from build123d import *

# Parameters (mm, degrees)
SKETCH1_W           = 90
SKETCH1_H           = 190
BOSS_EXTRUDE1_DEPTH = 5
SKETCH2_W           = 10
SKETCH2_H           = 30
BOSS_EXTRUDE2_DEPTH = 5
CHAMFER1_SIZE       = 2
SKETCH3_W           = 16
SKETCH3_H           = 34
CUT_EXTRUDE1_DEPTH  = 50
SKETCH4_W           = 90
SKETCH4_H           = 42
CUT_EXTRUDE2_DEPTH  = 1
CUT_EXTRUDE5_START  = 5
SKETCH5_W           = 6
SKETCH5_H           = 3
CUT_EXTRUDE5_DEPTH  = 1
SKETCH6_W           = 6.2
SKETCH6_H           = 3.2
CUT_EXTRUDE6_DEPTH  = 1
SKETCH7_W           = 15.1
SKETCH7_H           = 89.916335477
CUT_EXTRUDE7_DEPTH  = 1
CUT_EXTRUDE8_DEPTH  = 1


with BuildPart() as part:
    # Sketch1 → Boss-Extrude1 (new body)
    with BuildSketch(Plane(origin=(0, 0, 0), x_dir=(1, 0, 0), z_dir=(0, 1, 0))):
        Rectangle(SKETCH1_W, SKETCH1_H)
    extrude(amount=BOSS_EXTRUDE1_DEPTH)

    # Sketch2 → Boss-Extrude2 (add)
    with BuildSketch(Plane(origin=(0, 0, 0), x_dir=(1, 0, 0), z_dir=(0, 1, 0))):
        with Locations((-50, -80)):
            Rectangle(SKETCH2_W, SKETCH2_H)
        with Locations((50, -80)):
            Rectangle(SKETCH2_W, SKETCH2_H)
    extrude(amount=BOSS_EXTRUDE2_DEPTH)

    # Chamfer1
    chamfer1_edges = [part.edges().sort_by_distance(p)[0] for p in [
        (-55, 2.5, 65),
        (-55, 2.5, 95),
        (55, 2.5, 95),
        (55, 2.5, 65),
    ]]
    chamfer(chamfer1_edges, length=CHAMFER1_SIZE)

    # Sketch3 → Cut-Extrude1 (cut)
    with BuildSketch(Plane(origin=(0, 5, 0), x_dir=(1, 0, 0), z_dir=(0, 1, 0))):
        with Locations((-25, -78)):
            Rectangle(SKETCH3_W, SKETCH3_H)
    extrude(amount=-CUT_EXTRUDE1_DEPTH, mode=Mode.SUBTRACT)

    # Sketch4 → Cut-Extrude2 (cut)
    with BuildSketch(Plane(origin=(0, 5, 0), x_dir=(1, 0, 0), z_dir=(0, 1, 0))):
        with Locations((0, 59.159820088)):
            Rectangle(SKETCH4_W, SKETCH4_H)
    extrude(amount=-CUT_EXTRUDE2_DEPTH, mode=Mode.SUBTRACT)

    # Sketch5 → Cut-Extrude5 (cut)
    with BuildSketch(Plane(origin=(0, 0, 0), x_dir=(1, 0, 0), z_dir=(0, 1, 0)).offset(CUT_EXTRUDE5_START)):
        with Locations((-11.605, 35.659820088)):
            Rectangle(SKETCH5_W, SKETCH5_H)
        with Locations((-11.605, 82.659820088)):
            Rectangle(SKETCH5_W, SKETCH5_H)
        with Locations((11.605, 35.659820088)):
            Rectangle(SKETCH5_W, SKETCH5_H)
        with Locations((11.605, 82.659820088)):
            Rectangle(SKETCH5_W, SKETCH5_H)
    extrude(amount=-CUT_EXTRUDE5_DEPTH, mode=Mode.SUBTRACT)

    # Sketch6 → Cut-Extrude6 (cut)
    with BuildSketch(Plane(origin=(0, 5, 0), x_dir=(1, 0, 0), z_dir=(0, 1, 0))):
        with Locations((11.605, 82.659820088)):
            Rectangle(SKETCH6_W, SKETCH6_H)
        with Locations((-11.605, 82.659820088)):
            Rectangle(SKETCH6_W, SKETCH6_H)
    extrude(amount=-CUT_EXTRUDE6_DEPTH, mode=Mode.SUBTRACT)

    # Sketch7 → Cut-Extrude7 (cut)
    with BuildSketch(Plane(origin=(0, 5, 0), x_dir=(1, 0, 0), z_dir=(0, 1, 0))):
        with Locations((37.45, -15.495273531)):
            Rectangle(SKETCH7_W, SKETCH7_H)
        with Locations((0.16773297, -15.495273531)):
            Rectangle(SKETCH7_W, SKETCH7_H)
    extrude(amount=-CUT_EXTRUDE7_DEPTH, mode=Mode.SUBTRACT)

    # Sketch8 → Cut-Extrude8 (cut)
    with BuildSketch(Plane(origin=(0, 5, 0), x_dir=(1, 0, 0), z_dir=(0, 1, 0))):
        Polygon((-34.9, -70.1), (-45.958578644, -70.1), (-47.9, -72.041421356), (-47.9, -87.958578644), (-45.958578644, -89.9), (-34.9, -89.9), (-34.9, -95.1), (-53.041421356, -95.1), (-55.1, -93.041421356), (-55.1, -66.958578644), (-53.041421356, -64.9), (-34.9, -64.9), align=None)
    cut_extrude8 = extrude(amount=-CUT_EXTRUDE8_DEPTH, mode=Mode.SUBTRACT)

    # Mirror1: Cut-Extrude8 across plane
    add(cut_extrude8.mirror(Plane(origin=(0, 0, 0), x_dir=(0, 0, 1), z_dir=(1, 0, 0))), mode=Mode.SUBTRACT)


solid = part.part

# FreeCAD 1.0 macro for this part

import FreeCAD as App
import Part
import Sketcher

V = App.Vector


def edges_at(feature, points):
    """Names of the edges that pass closest to the given points."""
    edges = feature.Shape.Edges
    near = lambda p: min(range(len(edges)), key=lambda i: edges[i].distToShape(Part.Vertex(*p))[0])
    return sorted({f"Edge{near(p) + 1}" for p in points})


def add_polygon(sketch, points):
    """Adds a closed chain of lines whose ends are joined by coincident constraints."""
    first, n = sketch.GeometryCount, len(points)
    for a, b in zip(points, points[1:] + points[:1]):
        sketch.addGeometry(Part.LineSegment(App.Vector(*a, 0), App.Vector(*b, 0)), False)
    for i in range(n):
        sketch.addConstraint(Sketcher.Constraint("Coincident", first + i, 2, first + (i + 1) % n, 1))

doc = App.newDocument("Part")
params = doc.addObject("Spreadsheet::Sheet", "Params")
for row, (alias, value) in enumerate([
    ("sketch1_width", "90 mm"),
    ("sketch1_height", "190 mm"),
    ("pad1_length", "5 mm"),
    ("sketch2_width", "10 mm"),
    ("sketch2_height", "30 mm"),
    ("pad2_length", "5 mm"),
    ("chamfer_size", "2 mm"),
    ("sketch3_width", "16 mm"),
    ("sketch3_height", "34 mm"),
    ("pocket1_length", "50 mm"),
    ("sketch4_width", "90 mm"),
    ("sketch4_height", "42 mm"),
    ("pocket2_length", "1 mm"),
    ("sketch5_width", "6 mm"),
    ("sketch5_height", "3 mm"),
    ("pocket3_length", "1 mm"),
    ("sketch6_width", "6.2 mm"),
    ("sketch6_height", "3.2 mm"),
    ("pocket4_length", "1 mm"),
    ("sketch7_width", "15.1 mm"),
    ("pocket5_length", "1 mm"),
    ("sketch8_height", "5.2 mm"),
    ("pocket6_length", "1 mm"),
], start=1):
    params.set(f"A{row}", alias)
    params.set(f"B{row}", "=" + value)
    params.setAlias(f"B{row}", alias)

body = doc.addObject("PartDesign::Body", "Body")

# Sketch on XZ plane
sketch1 = body.newObject("Sketcher::SketchObject", "Sketch")
sketch1.AttachmentSupport = (doc.getObject("XZ_Plane"), [""])
sketch1.MapMode = "FlatFace"
add_polygon(sketch1, [(-45, -95), (-45, 95), (45, 95), (45, -95)])  # lines 0-3
sketch1.addConstraint([
    Sketcher.Constraint("Vertical", 0),
    Sketcher.Constraint("Horizontal", 1),
    Sketcher.Constraint("Vertical", 2),
    Sketcher.Constraint("Horizontal", 3),
    Sketcher.Constraint("Symmetric", 0, 2, 2, 2, -1, 1),
    Sketcher.Constraint("DistanceX", 1, 1, 1, 2, 90.0),
    Sketcher.Constraint("DistanceY", 0, 1, 0, 2, 190.0),
])
sketch1.setExpression("Constraints[9]", "Params.sketch1_width")
sketch1.setExpression("Constraints[10]", "Params.sketch1_height")
pad1 = body.newObject("PartDesign::Pad", "Pad")
pad1.Profile = sketch1
pad1.setExpression("Length", "Params.pad1_length")
pad1.Reversed = True

# Sketch on XZ plane
sketch2 = body.newObject("Sketcher::SketchObject", "Sketch001")
sketch2.AttachmentSupport = (doc.getObject("XZ_Plane"), [""])
sketch2.MapMode = "FlatFace"
add_polygon(sketch2, [(-55, 65), (-55, 95), (-45, 95), (-45, 65)])  # lines 0-3
add_polygon(sketch2, [(45, 65), (45, 95), (55, 95), (55, 65)])  # lines 4-7
sketch2.addConstraint([
    Sketcher.Constraint("Vertical", 0),
    Sketcher.Constraint("Horizontal", 1),
    Sketcher.Constraint("Vertical", 2),
    Sketcher.Constraint("Horizontal", 3),
    Sketcher.Constraint("Vertical", 4),
    Sketcher.Constraint("Horizontal", 5),
    Sketcher.Constraint("Vertical", 6),
    Sketcher.Constraint("Horizontal", 7),
    Sketcher.Constraint("Symmetric", 1, 2, 4, 2, -2),
    Sketcher.Constraint("Symmetric", 3, 2, 6, 2, -2),
    Sketcher.Constraint("DistanceX", 1, 1, 1, 2, 10.0),
    Sketcher.Constraint("DistanceY", 0, 1, 0, 2, 30.0),
    Sketcher.Constraint("DistanceX", 0, 2, -1, 1, 55.0),
    Sketcher.Constraint("DistanceY", -1, 1, 0, 2, 95.0),
])
sketch2.setExpression("Constraints[18]", "Params.sketch2_width")
sketch2.setExpression("Constraints[19]", "Params.sketch2_height")
pad2 = body.newObject("PartDesign::Pad", "Pad001")
pad2.Profile = sketch2
pad2.setExpression("Length", "Params.pad2_length")
pad2.Reversed = True
doc.recompute()

chamfer = body.newObject("PartDesign::Chamfer", "Chamfer")
chamfer.Base = (pad2, edges_at(pad2, [
    (-55, 2.5, 65),
    (-55, 2.5, 95),
    (55, 2.5, 95),
    (55, 2.5, 65),
]))
chamfer.setExpression("Size", "Params.chamfer_size")

# Sketch on XZ plane
sketch3 = body.newObject("Sketcher::SketchObject", "Sketch002")
sketch3.AttachmentSupport = (doc.getObject("XZ_Plane"), [""])
sketch3.MapMode = "FlatFace"
sketch3.AttachmentOffset = App.Placement(V(0, 0, -5), App.Rotation())
add_polygon(sketch3, [(-33, 61), (-33, 95), (-17, 95), (-17, 61)])  # lines 0-3
sketch3.addConstraint([
    Sketcher.Constraint("Vertical", 0),
    Sketcher.Constraint("Horizontal", 1),
    Sketcher.Constraint("Vertical", 2),
    Sketcher.Constraint("Horizontal", 3),
    Sketcher.Constraint("DistanceX", 1, 1, 1, 2, 16.0),
    Sketcher.Constraint("DistanceY", 0, 1, 0, 2, 34.0),
    Sketcher.Constraint("DistanceX", 0, 2, -1, 1, 33.0),
    Sketcher.Constraint("DistanceY", -1, 1, 0, 2, 95.0),
])
sketch3.setExpression("Constraints[8]", "Params.sketch3_width")
sketch3.setExpression("Constraints[9]", "Params.sketch3_height")
pocket1 = body.newObject("PartDesign::Pocket", "Pocket")
pocket1.Profile = sketch3
pocket1.setExpression("Length", "Params.pocket1_length")
pocket1.Reversed = True

# Sketch on XZ plane
sketch4 = body.newObject("Sketcher::SketchObject", "Sketch003")
sketch4.AttachmentSupport = (doc.getObject("XZ_Plane"), [""])
sketch4.MapMode = "FlatFace"
sketch4.AttachmentOffset = App.Placement(V(0, 0, -5), App.Rotation())
add_polygon(sketch4, [(-45, -80.15982), (-45, -38.15982), (45, -38.15982), (45, -80.15982)])  # lines 0-3
sketch4.addConstraint([
    Sketcher.Constraint("Vertical", 0),
    Sketcher.Constraint("Horizontal", 1),
    Sketcher.Constraint("Vertical", 2),
    Sketcher.Constraint("Horizontal", 3),
    Sketcher.Constraint("DistanceX", 1, 1, 1, 2, 90.0),
    Sketcher.Constraint("DistanceY", 0, 1, 0, 2, 42.0),
    Sketcher.Constraint("DistanceX", 0, 2, -1, 1, 45.0),
    Sketcher.Constraint("DistanceY", 0, 2, -1, 1, 38.15982),
])
sketch4.setExpression("Constraints[8]", "Params.sketch4_width")
sketch4.setExpression("Constraints[9]", "Params.sketch4_height")
pocket2 = body.newObject("PartDesign::Pocket", "Pocket001")
pocket2.Profile = sketch4
pocket2.setExpression("Length", "Params.pocket2_length")
pocket2.Reversed = True

# Sketch on XZ plane
sketch5 = body.newObject("Sketcher::SketchObject", "Sketch004")
sketch5.AttachmentSupport = (doc.getObject("XZ_Plane"), [""])
sketch5.MapMode = "FlatFace"
sketch5.AttachmentOffset = App.Placement(V(0, 0, -5), App.Rotation())
add_polygon(sketch5, [(-14.605, -37.15982), (-14.605, -34.15982), (-8.605, -34.15982), (-8.605, -37.15982)])  # lines 0-3
add_polygon(sketch5, [(-14.605, -84.15982), (-14.605, -81.15982), (-8.605, -81.15982), (-8.605, -84.15982)])  # lines 4-7
add_polygon(sketch5, [(8.605, -37.15982), (8.605, -34.15982), (14.605, -34.15982), (14.605, -37.15982)])  # lines 8-11
add_polygon(sketch5, [(8.605, -84.15982), (8.605, -81.15982), (14.605, -81.15982), (14.605, -84.15982)])  # lines 12-15
sketch5.addConstraint([
    Sketcher.Constraint("Vertical", 0),
    Sketcher.Constraint("Horizontal", 1),
    Sketcher.Constraint("Vertical", 2),
    Sketcher.Constraint("Horizontal", 3),
    Sketcher.Constraint("Vertical", 4),
    Sketcher.Constraint("Horizontal", 5),
    Sketcher.Constraint("Vertical", 6),
    Sketcher.Constraint("Horizontal", 7),
    Sketcher.Constraint("Vertical", 8),
    Sketcher.Constraint("Horizontal", 9),
    Sketcher.Constraint("Vertical", 10),
    Sketcher.Constraint("Horizontal", 11),
    Sketcher.Constraint("Vertical", 12),
    Sketcher.Constraint("Horizontal", 13),
    Sketcher.Constraint("Vertical", 14),
    Sketcher.Constraint("Horizontal", 15),
    Sketcher.Constraint("Symmetric", 1, 2, 8, 2, -2),
    Sketcher.Constraint("Symmetric", 3, 2, 10, 2, -2),
    Sketcher.Constraint("Symmetric", 5, 2, 12, 2, -2),
    Sketcher.Constraint("Symmetric", 7, 2, 14, 2, -2),
    Sketcher.Constraint("Vertical", 3, 2, 4, 2),
    Sketcher.Constraint("Vertical", 2, 2, 5, 2),
    Sketcher.Constraint("Equal", 2, 4),
    Sketcher.Constraint("DistanceX", 1, 1, 1, 2, 6.0),
    Sketcher.Constraint("DistanceY", 0, 1, 0, 2, 3.0),
    Sketcher.Constraint("DistanceY", 4, 2, 3, 2, 44.0),
    Sketcher.Constraint("DistanceX", 1, 2, 8, 2, 17.21),
    Sketcher.Constraint("DistanceY", 0, 2, -1, 1, 34.15982),
])
sketch5.setExpression("Constraints[39]", "Params.sketch5_width")
sketch5.setExpression("Constraints[40]", "Params.sketch5_height")
pocket3 = body.newObject("PartDesign::Pocket", "Pocket002")
pocket3.Profile = sketch5
pocket3.setExpression("Length", "Params.pocket3_length")
pocket3.Reversed = True

# Sketch on XZ plane
sketch6 = body.newObject("Sketcher::SketchObject", "Sketch005")
sketch6.AttachmentSupport = (doc.getObject("XZ_Plane"), [""])
sketch6.MapMode = "FlatFace"
sketch6.AttachmentOffset = App.Placement(V(0, 0, -5), App.Rotation())
add_polygon(sketch6, [(8.505, -84.25982), (8.505, -81.05982), (14.705, -81.05982), (14.705, -84.25982)])  # lines 0-3
add_polygon(sketch6, [(-14.705, -84.25982), (-14.705, -81.05982), (-8.505, -81.05982), (-8.505, -84.25982)])  # lines 4-7
sketch6.addConstraint([
    Sketcher.Constraint("Vertical", 0),
    Sketcher.Constraint("Horizontal", 1),
    Sketcher.Constraint("Vertical", 2),
    Sketcher.Constraint("Horizontal", 3),
    Sketcher.Constraint("Vertical", 4),
    Sketcher.Constraint("Horizontal", 5),
    Sketcher.Constraint("Vertical", 6),
    Sketcher.Constraint("Horizontal", 7),
    Sketcher.Constraint("Symmetric", 1, 2, 4, 2, -2),
    Sketcher.Constraint("Symmetric", 3, 2, 6, 2, -2),
    Sketcher.Constraint("DistanceX", 1, 1, 1, 2, 6.2),
    Sketcher.Constraint("DistanceY", 0, 1, 0, 2, 3.2),
    Sketcher.Constraint("DistanceX", 4, 2, 0, 2, 23.21),
    Sketcher.Constraint("DistanceY", 0, 2, -1, 1, 81.05982),
])
sketch6.setExpression("Constraints[18]", "Params.sketch6_width")
sketch6.setExpression("Constraints[19]", "Params.sketch6_height")
pocket4 = body.newObject("PartDesign::Pocket", "Pocket003")
pocket4.Profile = sketch6
pocket4.setExpression("Length", "Params.pocket4_length")
pocket4.Reversed = True

# Sketch on XZ plane
sketch7 = body.newObject("Sketcher::SketchObject", "Sketch006")
sketch7.AttachmentSupport = (doc.getObject("XZ_Plane"), [""])
sketch7.MapMode = "FlatFace"
sketch7.AttachmentOffset = App.Placement(V(0, 0, -5), App.Rotation())
add_polygon(sketch7, [(29.9, -29.462894), (29.9, 60.453441), (45, 60.453441), (45, -29.462894)])  # lines 0-3
add_polygon(sketch7, [(-7.382267, -29.462894), (-7.382267, 60.453441), (7.717733, 60.453441), (7.717733, -29.462894)])  # lines 4-7
sketch7.addConstraint([
    Sketcher.Constraint("Vertical", 0),
    Sketcher.Constraint("Horizontal", 1),
    Sketcher.Constraint("Vertical", 2),
    Sketcher.Constraint("Horizontal", 3),
    Sketcher.Constraint("Vertical", 4),
    Sketcher.Constraint("Horizontal", 5),
    Sketcher.Constraint("Vertical", 6),
    Sketcher.Constraint("Horizontal", 7),
    Sketcher.Constraint("Horizontal", 1, 2, 4, 2),
    Sketcher.Constraint("Horizontal", 3, 2, 6, 2),
    Sketcher.Constraint("Equal", 3, 5),
    Sketcher.Constraint("DistanceX", 1, 1, 1, 2, 15.1),
    Sketcher.Constraint("DistanceX", -1, 1, 1, 2, 45.0),
    Sketcher.Constraint("DistanceY", 0, 1, 0, 2, 89.916335),
    Sketcher.Constraint("DistanceY", -1, 1, 0, 2, 60.453441),
    Sketcher.Constraint("DistanceX", 4, 2, -1, 1, 7.382267),
])
sketch7.setExpression("Constraints[19]", "Params.sketch7_width")
pocket5 = body.newObject("PartDesign::Pocket", "Pocket004")
pocket5.Profile = sketch7
pocket5.setExpression("Length", "Params.pocket5_length")
pocket5.Reversed = True

# Sketch on XZ plane
sketch8 = body.newObject("Sketcher::SketchObject", "Sketch007")
sketch8.AttachmentSupport = (doc.getObject("XZ_Plane"), [""])
sketch8.MapMode = "FlatFace"
sketch8.AttachmentOffset = App.Placement(V(0, 0, -5), App.Rotation())
add_polygon(sketch8, [(-45.958579, 70.1), (-34.9, 70.1), (-34.9, 64.9), (-53.041421, 64.9), (-55.1, 66.958579), (-55.1, 93.041421), (-53.041421, 95.1), (-34.9, 95.1), (-34.9, 89.9), (-45.958579, 89.9), (-47.9, 87.958579), (-47.9, 72.041421)])  # lines 0-11
sketch8.addConstraint([
    Sketcher.Constraint("Horizontal", 0),
    Sketcher.Constraint("Vertical", 1),
    Sketcher.Constraint("Horizontal", 2),
    Sketcher.Constraint("Vertical", 4),
    Sketcher.Constraint("Horizontal", 6),
    Sketcher.Constraint("Vertical", 7),
    Sketcher.Constraint("Horizontal", 8),
    Sketcher.Constraint("Vertical", 10),
    Sketcher.Constraint("Perpendicular", 3, 5),
    Sketcher.Constraint("Parallel", 5, 9),
    Sketcher.Constraint("Perpendicular", 9, 11),
    Sketcher.Constraint("Vertical", 2, 2, 5, 2),
    Sketcher.Constraint("Vertical", 1, 2, 6, 2),
    Sketcher.Constraint("Vertical", 8, 2, 11, 2),
    Sketcher.Constraint("Equal", 1, 7),
    Sketcher.Constraint("Equal", 3, 5),
    Sketcher.Constraint("DistanceY", 1, 2, 1, 1, 5.2),
    Sketcher.Constraint("DistanceY", 0, 2, 5, 2, 25.0),
    Sketcher.Constraint("DistanceX", 9, 2, 7, 2, 13.0),
    Sketcher.Constraint("DistanceX", 0, 2, -1, 1, 34.9),
    Sketcher.Constraint("DistanceY", -1, 1, 0, 2, 70.1),
    Sketcher.Constraint("DistanceX", 3, 2, -1, 1, 55.1),
    Sketcher.Constraint("DistanceX", 0, 1, 0, 2, 11.058579),
    Sketcher.Constraint("DistanceX", 2, 2, 2, 1, 18.141421),
])
sketch8.setExpression("Constraints[28]", "Params.sketch8_height")
pocket6 = body.newObject("PartDesign::Pocket", "Pocket005")
pocket6.Profile = sketch8
pocket6.setExpression("Length", "Params.pocket6_length")
pocket6.Reversed = True
doc.recompute()

mirrored = body.newObject("PartDesign::Mirrored", "Mirrored")
mirrored.Originals = [pocket6]
mirrored.MirrorPlane = (doc.getObject("YZ_Plane"), [""])
body.Tip = mirrored

doc.recompute()
